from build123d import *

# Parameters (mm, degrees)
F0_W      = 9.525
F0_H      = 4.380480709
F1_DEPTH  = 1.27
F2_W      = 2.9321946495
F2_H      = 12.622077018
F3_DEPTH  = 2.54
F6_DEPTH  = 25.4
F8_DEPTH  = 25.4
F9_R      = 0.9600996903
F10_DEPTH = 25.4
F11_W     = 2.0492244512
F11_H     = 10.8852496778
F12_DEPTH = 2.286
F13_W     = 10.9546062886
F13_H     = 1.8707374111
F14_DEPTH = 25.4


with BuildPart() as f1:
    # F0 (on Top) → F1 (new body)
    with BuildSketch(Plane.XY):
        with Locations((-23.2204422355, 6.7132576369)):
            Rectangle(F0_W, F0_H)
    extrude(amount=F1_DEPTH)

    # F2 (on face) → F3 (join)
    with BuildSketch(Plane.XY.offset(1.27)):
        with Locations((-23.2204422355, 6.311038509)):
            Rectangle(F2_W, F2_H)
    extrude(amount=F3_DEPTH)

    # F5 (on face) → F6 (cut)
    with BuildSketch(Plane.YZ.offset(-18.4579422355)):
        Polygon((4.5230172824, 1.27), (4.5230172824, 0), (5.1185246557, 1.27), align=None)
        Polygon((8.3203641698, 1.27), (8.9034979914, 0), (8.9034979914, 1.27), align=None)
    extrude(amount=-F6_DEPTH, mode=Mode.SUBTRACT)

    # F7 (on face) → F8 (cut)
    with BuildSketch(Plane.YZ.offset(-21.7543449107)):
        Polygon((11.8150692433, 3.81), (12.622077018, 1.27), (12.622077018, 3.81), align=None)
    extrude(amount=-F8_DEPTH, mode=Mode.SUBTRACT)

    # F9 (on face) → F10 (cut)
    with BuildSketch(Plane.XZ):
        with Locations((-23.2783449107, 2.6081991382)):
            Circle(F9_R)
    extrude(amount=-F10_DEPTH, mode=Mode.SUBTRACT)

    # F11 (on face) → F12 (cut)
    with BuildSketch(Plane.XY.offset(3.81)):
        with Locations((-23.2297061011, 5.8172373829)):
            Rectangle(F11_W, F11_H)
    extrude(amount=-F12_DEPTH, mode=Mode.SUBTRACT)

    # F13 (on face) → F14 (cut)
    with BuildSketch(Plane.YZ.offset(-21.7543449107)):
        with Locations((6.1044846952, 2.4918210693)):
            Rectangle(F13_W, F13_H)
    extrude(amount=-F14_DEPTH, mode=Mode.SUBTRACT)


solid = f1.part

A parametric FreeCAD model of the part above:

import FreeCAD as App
import Part
import Sketcher

V = App.Vector
Q = App.Units.Quantity


def add_polygon(sketch, points):
    """Adds a closed chain of lines whose ends are joined by coincident constraints."""
    first, n = sketch.GeometryCount, len(points)
    for a, b in zip(points, points[1:] + points[:1]):
        sketch.addGeometry(Part.LineSegment(App.Vector(*a, 0), App.Vector(*b, 0)), False)
    for i in range(n):
        sketch.addConstraint(Sketcher.Constraint("Coincident", first + i, 2, first + (i + 1) % n, 1))

doc = App.newDocument("Part")
body = doc.addObject("PartDesign::Body", "Body")

# Sketch on XY plane
sketch1 = body.newObject("Sketcher::SketchObject", "Sketch")
sketch1.AttachmentSupport = (doc.getObject("XY_Plane"), [""])
sketch1.MapMode = "FlatFace"
add_polygon(sketch1, [(-28, 8.9), (-28, 4.5), (-18.5, 4.5), (-18.5, 8.9)])  # lines 0-3
sketch1.addConstraint(Sketcher.Constraint("Vertical", 0))
sketch1.addConstraint(Sketcher.Constraint("Horizontal", 1))
sketch1.addConstraint(Sketcher.Constraint("Vertical", 2))
sketch1.addConstraint(Sketcher.Constraint("Horizontal", 3))
sketch1.addConstraint(Sketcher.Constraint("DistanceX", 1, 1, 1, 2, Q("0.375 in")))
sketch1.addConstraint(Sketcher.Constraint("DistanceY", 0, 2, 0, 1, 4.380481))
sketch1.addConstraint(Sketcher.Constraint("DistanceX", 0, 2, -1, 1, 27.982942))
sketch1.addConstraint(Sketcher.Constraint("DistanceY", -1, 1, 0, 2, 4.523017))
pad1 = body.newObject("PartDesign::Pad", "Pad")
pad1.Profile = sketch1
pad1.Length = Q("0.05 in")

# Sketch on XY plane
sketch2 = body.newObject("Sketcher::SketchObject", "Sketch001")
sketch2.AttachmentSupport = (doc.getObject("XY_Plane"), [""])
sketch2.MapMode = "FlatFace"
sketch2.AttachmentOffset = App.Placement(V(0, 0, 0.05 * 25.4), App.Rotation())
add_polygon(sketch2, [(-24.7, 12.6), (-24.7, 0), (-21.8, 0), (-21.8, 12.6)])  # lines 0-3
sketch2.addConstraint(Sketcher.Constraint("Vertical", 0))
sketch2.addConstraint(Sketcher.Constraint("Horizontal", 1))
sketch2.addConstraint(Sketcher.Constraint("Vertical", 2))
sketch2.addConstraint(Sketcher.Constraint("Horizontal", 3))
sketch2.addConstraint(Sketcher.Constraint("PointOnObject", 0, 2, -1))
sketch2.addConstraint(Sketcher.Constraint("DistanceX", 1, 1, 1, 2, 2.932195))
sketch2.addConstraint(Sketcher.Constraint("DistanceY", 0, 2, 0, 1, 12.622077))
sketch2.addConstraint(Sketcher.Constraint("DistanceX", 0, 2, -1, 1, 24.68654))
pad2 = body.newObject("PartDesign::Pad", "Pad001")
pad2.Profile = sketch2
pad2.Length = Q("0.1 in")

# Sketch on YZ plane
sketch3 = body.newObject("Sketcher::SketchObject", "Sketch002")
sketch3.AttachmentSupport = (doc.getObject("YZ_Plane"), [""])
sketch3.MapMode = "FlatFace"
sketch3.AttachmentOffset = App.Placement(V(0, 0, -18.457942), App.Rotation())
add_polygon(sketch3, [(4.5, 1.3), (4.5, 0), (5.1, 1.3)])  # lines 0-2
add_polygon(sketch3, [(8.3, 1.3), (8.9, 0), (8.9, 1.3)])  # lines 3-5
sketch3.addConstraint(Sketcher.Constraint("Vertical", 0))
sketch3.addConstraint(Sketcher.Constraint("Horizontal", 2))
sketch3.addConstraint(Sketcher.Constraint("Vertical", 4))
sketch3.addConstraint(Sketcher.Constraint("Horizontal", 5))
sketch3.addConstraint(Sketcher.Constraint("PointOnObject", 0, 2, -1))
sketch3.addConstraint(Sketcher.Constraint("PointOnObject", 3, 2, -1))
sketch3.addConstraint(Sketcher.Constraint("Horizontal", 2, 2, 4, 2))
sketch3.addConstraint(Sketcher.Constraint("DistanceY", 0, 2, 0, 1, Q("0.05 in")))
sketch3.addConstraint(Sketcher.Constraint("Distance", 3, 1.397478))
sketch3.addConstraint(Sketcher.Constraint("DistanceX", 2, 2, 2, 1, 0.595507))
sketch3.addConstraint(Sketcher.Constraint("DistanceX", 0, 2, 3, 2, 4.380481))
sketch3.addConstraint(Sketcher.Constraint("DistanceX", -1, 1, 0, 2, 4.523017))
pocket1 = body.newObject("PartDesign::Pocket", "Pocket")
pocket1.Profile = sketch3
pocket1.Length = Q("1 in")

# Sketch on YZ plane
sketch4 = body.newObject("Sketcher::SketchObject", "Sketch003")
sketch4.AttachmentSupport = (doc.getObject("YZ_Plane"), [""])
sketch4.MapMode = "FlatFace"
sketch4.AttachmentOffset = App.Placement(V(0, 0, -21.754345), App.Rotation())
add_polygon(sketch4, [(11.8, 3.8), (12.6, 1.3), (12.6, 3.8)])  # lines 0-2
sketch4.addConstraint(Sketcher.Constraint("Vertical", 1))
sketch4.addConstraint(Sketcher.Constraint("Horizontal", 2))
sketch4.addConstraint(Sketcher.Constraint("DistanceY", 1, 1, 1, 2, Q("0.1 in")))
sketch4.addConstraint(Sketcher.Constraint("DistanceY", -1, 1, 0, 2, Q("0.05 in")))
sketch4.addConstraint(Sketcher.Constraint("Distance", 0, 2.665119))
sketch4.addConstraint(Sketcher.Constraint("DistanceX", -1, 1, 2, 2, 11.815069))
pocket2 = body.newObject("PartDesign::Pocket", "Pocket001")
pocket2.Profile = sketch4
pocket2.Length = Q("1 in")

# Sketch on XZ plane
sketch5 = body.newObject("Sketcher::SketchObject", "Sketch004")
sketch5.AttachmentSupport = (doc.getObject("XZ_Plane"), [""])
sketch5.MapMode = "FlatFace"
sketch5.addGeometry(Part.Circle(V(-23.3, 2.6, 0), V(0, 0, 1), 1), False)
sketch5.addConstraint(Sketcher.Constraint("Diameter", 0, 1.920199))
sketch5.addConstraint(Sketcher.Constraint("DistanceY", -1, 1, 0, 3, 2.608199))
sketch5.addConstraint(Sketcher.Constraint("DistanceX", 0, 3, -1, 1, 23.278345))
pocket3 = body.newObject("PartDesign::Pocket", "Pocket002")
pocket3.Profile = sketch5
pocket3.Length = Q("1 in")

# Sketch on XY plane
sketch6 = body.newObject("Sketcher::SketchObject", "Sketch005")
sketch6.AttachmentSupport = (doc.getObject("XY_Plane"), [""])
sketch6.MapMode = "FlatFace"
sketch6.AttachmentOffset = App.Placement(V(0, 0, 0.15 * 25.4), App.Rotation())
add_polygon(sketch6, [(-24.3, 11.3), (-24.3, 0.4), (-22.2, 0.4), (-22.2, 11.3)])  # lines 0-3
sketch6.addConstraint(Sketcher.Constraint("Vertical", 0))
sketch6.addConstraint(Sketcher.Constraint("Horizontal", 1))
sketch6.addConstraint(Sketcher.Constraint("Vertical", 2))
sketch6.addConstraint(Sketcher.Constraint("Horizontal", 3))
sketch6.addConstraint(Sketcher.Constraint("DistanceY", 0, 2, 0, 1, 10.88525))
sketch6.addConstraint(Sketcher.Constraint("DistanceX", 1, 1, 1, 2, 2.049224))
sketch6.addConstraint(Sketcher.Constraint("DistanceX", 0, 2, -1, 1, 24.254318))
sketch6.addConstraint(Sketcher.Constraint("DistanceY", -1, 1, 0, 2, 0.374613))
pocket4 = body.newObject("PartDesign::Pocket", "Pocket003")
pocket4.Profile = sketch6
pocket4.Length = Q("0.09 in")

# Sketch on YZ plane
sketch7 = body.newObject("Sketcher::SketchObject", "Sketch006")
sketch7.AttachmentSupport = (doc.getObject("YZ_Plane"), [""])
sketch7.MapMode = "FlatFace"
sketch7.AttachmentOffset = App.Placement(V(0, 0, -21.754345), App.Rotation())
add_polygon(sketch7, [(0.6, 3.4), (0.6, 1.6), (11.6, 1.6), (11.6, 3.4)])  # lines 0-3
sketch7.addConstraint(Sketcher.Constraint("Vertical", 0))
sketch7.addConstraint(Sketcher.Constraint("Horizontal", 1))
sketch7.addConstraint(Sketcher.Constraint("Vertical", 2))
sketch7.addConstraint(Sketcher.Constraint("Horizontal", 3))
sketch7.addConstraint(Sketcher.Constraint("DistanceX", 1, 1, 1, 2, 10.954606))
sketch7.addConstraint(Sketcher.Constraint("DistanceY", 0, 2, 0, 1, 1.870737))
sketch7.addConstraint(Sketcher.Constraint("DistanceX", -1, 1, 0, 2, 0.627182))
sketch7.addConstraint(Sketcher.Constraint("DistanceY", -1, 1, 2, 2, 3.42719))
pocket5 = body.newObject("PartDesign::Pocket", "Pocket004")
pocket5.Profile = sketch7
pocket5.Length = Q("1 in")

doc.recompute()
